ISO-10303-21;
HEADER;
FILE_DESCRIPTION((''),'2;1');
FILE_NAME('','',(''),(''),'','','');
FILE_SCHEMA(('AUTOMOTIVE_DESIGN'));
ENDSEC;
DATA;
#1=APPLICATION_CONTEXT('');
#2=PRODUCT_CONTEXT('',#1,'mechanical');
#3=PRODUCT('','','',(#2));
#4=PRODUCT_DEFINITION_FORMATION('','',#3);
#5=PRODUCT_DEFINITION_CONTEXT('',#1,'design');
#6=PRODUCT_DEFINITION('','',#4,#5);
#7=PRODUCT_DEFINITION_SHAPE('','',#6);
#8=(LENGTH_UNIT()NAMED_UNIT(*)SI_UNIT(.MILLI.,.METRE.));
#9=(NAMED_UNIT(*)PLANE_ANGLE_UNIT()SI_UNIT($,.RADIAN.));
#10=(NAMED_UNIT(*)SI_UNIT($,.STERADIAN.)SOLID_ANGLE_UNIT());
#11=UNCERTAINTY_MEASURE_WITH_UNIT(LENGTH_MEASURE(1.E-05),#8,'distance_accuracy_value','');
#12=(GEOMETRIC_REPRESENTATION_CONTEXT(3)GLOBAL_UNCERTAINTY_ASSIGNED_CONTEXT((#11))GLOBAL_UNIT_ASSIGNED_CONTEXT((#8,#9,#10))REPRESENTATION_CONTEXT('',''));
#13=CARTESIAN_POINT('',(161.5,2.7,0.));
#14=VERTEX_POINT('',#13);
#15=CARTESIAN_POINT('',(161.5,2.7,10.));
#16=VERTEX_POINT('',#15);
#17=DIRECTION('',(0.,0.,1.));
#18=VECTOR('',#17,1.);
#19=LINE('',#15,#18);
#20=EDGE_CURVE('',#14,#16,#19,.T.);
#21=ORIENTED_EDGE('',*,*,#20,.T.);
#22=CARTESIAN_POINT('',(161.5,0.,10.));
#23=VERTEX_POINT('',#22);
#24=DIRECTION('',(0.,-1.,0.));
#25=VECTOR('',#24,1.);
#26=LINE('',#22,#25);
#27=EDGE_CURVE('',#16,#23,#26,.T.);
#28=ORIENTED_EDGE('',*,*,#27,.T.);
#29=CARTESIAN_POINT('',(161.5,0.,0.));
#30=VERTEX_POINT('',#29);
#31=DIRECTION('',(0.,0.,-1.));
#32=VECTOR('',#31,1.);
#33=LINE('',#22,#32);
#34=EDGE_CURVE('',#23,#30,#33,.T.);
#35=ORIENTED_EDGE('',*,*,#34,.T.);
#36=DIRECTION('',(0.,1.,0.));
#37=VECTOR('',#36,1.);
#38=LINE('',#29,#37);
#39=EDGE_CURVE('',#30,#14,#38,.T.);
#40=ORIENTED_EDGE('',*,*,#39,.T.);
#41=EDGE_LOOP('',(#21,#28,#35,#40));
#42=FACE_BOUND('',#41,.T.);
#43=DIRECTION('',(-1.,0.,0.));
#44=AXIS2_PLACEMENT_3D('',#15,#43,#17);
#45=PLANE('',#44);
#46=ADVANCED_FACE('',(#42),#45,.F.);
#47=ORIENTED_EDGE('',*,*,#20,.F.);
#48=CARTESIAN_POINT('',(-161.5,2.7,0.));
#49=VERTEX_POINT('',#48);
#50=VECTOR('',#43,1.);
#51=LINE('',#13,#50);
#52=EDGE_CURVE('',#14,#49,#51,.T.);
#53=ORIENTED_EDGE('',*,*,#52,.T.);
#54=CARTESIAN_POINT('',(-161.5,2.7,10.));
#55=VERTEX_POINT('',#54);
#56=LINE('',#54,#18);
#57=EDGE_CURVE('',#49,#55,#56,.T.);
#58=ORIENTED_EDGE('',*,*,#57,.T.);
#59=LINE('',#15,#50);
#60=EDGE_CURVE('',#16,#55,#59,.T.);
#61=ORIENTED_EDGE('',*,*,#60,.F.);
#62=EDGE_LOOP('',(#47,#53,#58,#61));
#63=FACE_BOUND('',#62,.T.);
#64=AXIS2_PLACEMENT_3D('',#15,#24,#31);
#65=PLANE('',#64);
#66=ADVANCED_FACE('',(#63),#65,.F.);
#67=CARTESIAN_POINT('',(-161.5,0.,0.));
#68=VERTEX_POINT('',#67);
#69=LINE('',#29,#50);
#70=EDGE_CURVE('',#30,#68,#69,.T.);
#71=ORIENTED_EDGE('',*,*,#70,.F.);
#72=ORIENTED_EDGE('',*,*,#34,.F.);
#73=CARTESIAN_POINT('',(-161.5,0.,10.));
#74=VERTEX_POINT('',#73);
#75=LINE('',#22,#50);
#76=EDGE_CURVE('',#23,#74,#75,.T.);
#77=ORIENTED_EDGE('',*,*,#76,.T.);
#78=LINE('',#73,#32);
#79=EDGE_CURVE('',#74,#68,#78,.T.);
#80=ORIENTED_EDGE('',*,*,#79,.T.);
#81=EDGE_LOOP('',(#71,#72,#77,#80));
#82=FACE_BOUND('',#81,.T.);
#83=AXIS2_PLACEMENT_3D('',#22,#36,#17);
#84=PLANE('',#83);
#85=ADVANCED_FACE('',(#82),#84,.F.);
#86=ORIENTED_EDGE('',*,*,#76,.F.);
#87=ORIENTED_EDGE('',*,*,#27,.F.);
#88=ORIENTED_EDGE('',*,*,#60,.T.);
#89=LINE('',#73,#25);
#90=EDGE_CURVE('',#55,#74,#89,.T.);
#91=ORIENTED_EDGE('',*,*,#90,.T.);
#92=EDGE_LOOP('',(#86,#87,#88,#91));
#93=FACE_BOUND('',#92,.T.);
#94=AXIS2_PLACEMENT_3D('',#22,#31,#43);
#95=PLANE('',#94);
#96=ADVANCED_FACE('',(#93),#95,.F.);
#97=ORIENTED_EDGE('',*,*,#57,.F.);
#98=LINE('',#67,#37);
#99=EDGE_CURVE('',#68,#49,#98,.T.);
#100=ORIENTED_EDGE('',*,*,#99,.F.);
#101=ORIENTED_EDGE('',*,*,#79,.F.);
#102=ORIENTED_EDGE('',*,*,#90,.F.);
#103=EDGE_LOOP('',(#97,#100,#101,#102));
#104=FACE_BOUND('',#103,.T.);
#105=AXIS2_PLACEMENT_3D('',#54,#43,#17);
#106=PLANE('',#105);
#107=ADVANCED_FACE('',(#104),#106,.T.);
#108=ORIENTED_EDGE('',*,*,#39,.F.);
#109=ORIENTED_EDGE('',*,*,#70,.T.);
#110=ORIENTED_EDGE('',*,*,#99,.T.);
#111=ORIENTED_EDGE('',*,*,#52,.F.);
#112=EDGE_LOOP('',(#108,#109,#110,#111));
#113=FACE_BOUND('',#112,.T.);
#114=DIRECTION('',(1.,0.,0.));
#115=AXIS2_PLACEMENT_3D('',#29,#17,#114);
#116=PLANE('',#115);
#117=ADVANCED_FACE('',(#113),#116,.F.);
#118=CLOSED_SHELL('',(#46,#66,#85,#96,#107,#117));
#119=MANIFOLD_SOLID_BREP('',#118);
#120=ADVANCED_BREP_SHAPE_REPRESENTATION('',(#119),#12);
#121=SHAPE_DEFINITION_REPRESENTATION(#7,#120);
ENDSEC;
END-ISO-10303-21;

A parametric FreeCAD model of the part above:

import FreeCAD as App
import Part
import Sketcher
from FreeCAD import Vector
Q = App.Units.Quantity


def add_polygon(sketch, points):
    """Adds a closed chain of lines whose ends are joined by coincident constraints."""
    first, n = sketch.GeometryCount, len(points)
    for a, b in zip(points, points[1:] + points[:1]):
        sketch.addGeometry(Part.LineSegment(App.Vector(*a, 0), App.Vector(*b, 0)), False)
    for i in range(n):
        sketch.addConstraint(Sketcher.Constraint("Coincident", first + i, 2, first + (i + 1) % n, 1))

doc = App.newDocument("Part")
params = doc.addObject("Spreadsheet::Sheet", "Params")
for row, (alias, value) in enumerate([
    ("sketch1_height", "10 mm"),
    ("sketch1_width", "2.7 mm"),
    ("pad1_length", "161.5 mm"),
    ("pad1_length2", "161.5 mm"),
], start=1):
    params.set(f"A{row}", alias)
    params.set(f"B{row}", "=" + value)
    params.setAlias(f"B{row}", alias)

body = doc.addObject("PartDesign::Body", "Body")

# Sketch on YZ plane
sketch1 = body.newObject("Sketcher::SketchObject", "Sketch")
sketch1.AttachmentSupport = (doc.getObject("YZ_Plane"), [""])
sketch1.MapMode = "FlatFace"
add_polygon(sketch1, [(2.7, 10), (0, 10), (0, 0), (2.7, 0)])  # lines 0-3
sketch1.addConstraint([
    Sketcher.Constraint("Horizontal", 0),
    Sketcher.Constraint("Vertical", 1),
    Sketcher.Constraint("Horizontal", 2),
    Sketcher.Constraint("Vertical", 3),
    Sketcher.Constraint("Coincident", 1, 2, -1, 1),
    Sketcher.Constraint("DistanceY", 1, 2, 1, 1, Q("10 mm")),
    Sketcher.Constraint("DistanceX", 0, 2, 0, 1, Q("2.7 mm")),
])
sketch1.setExpression("Constraints[9]", "Params.sketch1_height")
sketch1.setExpression("Constraints[10]", "Params.sketch1_width")
pad1 = body.newObject("PartDesign::Pad", "Pad")
pad1.Profile = sketch1
pad1.Type = "TwoLengths"
pad1.setExpression("Length", "Params.pad1_length")
pad1.setExpression("Length2", "Params.pad1_length2")

doc.recompute()
